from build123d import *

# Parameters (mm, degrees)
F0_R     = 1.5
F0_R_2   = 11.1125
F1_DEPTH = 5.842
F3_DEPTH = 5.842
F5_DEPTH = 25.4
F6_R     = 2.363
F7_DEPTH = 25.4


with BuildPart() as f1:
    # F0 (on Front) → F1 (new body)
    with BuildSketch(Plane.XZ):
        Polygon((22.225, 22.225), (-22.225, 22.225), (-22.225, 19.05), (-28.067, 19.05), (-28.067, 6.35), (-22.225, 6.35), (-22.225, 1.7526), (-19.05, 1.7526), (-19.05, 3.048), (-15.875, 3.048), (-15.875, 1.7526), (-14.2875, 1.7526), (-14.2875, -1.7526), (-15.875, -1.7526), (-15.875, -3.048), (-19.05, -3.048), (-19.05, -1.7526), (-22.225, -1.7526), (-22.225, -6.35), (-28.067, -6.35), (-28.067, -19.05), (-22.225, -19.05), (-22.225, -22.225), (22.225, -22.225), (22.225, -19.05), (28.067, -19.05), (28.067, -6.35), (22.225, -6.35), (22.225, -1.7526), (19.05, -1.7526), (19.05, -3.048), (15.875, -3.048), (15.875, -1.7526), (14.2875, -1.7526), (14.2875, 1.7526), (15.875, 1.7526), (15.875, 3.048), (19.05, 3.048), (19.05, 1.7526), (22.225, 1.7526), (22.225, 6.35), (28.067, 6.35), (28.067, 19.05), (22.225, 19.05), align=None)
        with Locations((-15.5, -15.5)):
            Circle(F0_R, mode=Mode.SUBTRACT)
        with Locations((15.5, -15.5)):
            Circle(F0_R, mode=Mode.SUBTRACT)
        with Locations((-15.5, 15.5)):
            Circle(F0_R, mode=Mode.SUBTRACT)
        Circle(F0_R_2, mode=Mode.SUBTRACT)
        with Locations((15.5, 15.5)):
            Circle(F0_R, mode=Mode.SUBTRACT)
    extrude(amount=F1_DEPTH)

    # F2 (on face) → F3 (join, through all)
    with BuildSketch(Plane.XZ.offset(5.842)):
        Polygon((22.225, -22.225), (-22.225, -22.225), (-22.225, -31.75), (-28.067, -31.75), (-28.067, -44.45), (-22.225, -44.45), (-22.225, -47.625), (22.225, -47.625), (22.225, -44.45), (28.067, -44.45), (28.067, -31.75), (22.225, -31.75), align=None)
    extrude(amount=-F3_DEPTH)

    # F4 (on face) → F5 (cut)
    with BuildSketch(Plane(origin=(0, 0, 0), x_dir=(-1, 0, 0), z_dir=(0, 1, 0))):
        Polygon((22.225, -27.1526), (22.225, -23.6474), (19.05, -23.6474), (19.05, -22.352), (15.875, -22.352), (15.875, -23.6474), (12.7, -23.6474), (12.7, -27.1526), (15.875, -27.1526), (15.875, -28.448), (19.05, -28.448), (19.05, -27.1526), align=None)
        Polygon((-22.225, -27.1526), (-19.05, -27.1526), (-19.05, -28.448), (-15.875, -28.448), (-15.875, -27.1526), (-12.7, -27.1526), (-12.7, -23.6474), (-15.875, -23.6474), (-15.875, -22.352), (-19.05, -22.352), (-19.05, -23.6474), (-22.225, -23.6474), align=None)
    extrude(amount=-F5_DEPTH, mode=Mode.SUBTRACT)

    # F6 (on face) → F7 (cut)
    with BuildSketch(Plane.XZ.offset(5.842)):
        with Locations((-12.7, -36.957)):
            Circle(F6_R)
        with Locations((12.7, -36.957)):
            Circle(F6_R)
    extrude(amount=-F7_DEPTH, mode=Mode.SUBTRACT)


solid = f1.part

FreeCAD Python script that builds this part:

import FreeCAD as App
import Part
import Sketcher

V = App.Vector
Q = App.Units.Quantity

doc = App.newDocument("Part")
body = doc.addObject("PartDesign::Body", "Body")

sketch1 = doc.addObject("Sketcher::SketchObject", "Sketch")
body.addObject(sketch1)
sketch1.AttachmentSupport = (doc.XZ_Plane, [""])
sketch1.MapMode = "FlatFace"
sketch1.addGeometry([
    Part.LineSegment(V(22.2, 22.2, 0), V(-22.2, 22.2, 0)),
    Part.LineSegment(V(-22.2, 22.2, 0), V(-22.2, 19.1, 0)),
    Part.LineSegment(V(-22.2, 19.1, 0), V(-28.1, 19.1, 0)),
    Part.LineSegment(V(-28.1, 19.1, 0), V(-28.1, 6.3, 0)),
    Part.LineSegment(V(-28.1, 6.3, 0), V(-22.2, 6.3, 0)),
    Part.LineSegment(V(-22.2, 6.3, 0), V(-22.2, 1.8, 0)),
    Part.LineSegment(V(-22.2, 1.8, 0), V(-19.1, 1.8, 0)),
    Part.LineSegment(V(-19.1, 1.8, 0), V(-19.1, 3, 0)),
    Part.LineSegment(V(-19.1, 3, 0), V(-15.9, 3, 0)),
    Part.LineSegment(V(-15.9, 3, 0), V(-15.9, 1.8, 0)),
    Part.LineSegment(V(-15.9, 1.8, 0), V(-14.3, 1.8, 0)),
    Part.LineSegment(V(-14.3, 1.8, 0), V(-14.3, -1.8, 0)),
    Part.LineSegment(V(-14.3, -1.8, 0), V(-15.9, -1.8, 0)),
    Part.LineSegment(V(-15.9, -1.8, 0), V(-15.9, -3, 0)),
    Part.LineSegment(V(-15.9, -3, 0), V(-19.1, -3, 0)),
    Part.LineSegment(V(-19.1, -3, 0), V(-19.1, -1.8, 0)),
    Part.LineSegment(V(-19.1, -1.8, 0), V(-22.2, -1.8, 0)),
    Part.LineSegment(V(-22.2, -1.8, 0), V(-22.2, -6.3, 0)),
    Part.LineSegment(V(-22.2, -6.3, 0), V(-28.1, -6.3, 0)),
    Part.LineSegment(V(-28.1, -6.3, 0), V(-28.1, -19.1, 0)),
    Part.LineSegment(V(-28.1, -19.1, 0), V(-22.2, -19.1, 0)),
    Part.LineSegment(V(-22.2, -19.1, 0), V(-22.2, -22.2, 0)),
    Part.LineSegment(V(-22.2, -22.2, 0), V(22.2, -22.2, 0)),
    Part.LineSegment(V(22.2, -22.2, 0), V(22.2, -19.1, 0)),
    Part.LineSegment(V(22.2, -19.1, 0), V(28.1, -19.1, 0)),
    Part.LineSegment(V(28.1, -19.1, 0), V(28.1, -6.3, 0)),
    Part.LineSegment(V(28.1, -6.3, 0), V(22.2, -6.3, 0)),
    Part.LineSegment(V(22.2, -6.3, 0), V(22.2, -1.8, 0)),
    Part.LineSegment(V(22.2, -1.8, 0), V(19.1, -1.8, 0)),
    Part.LineSegment(V(19.1, -1.8, 0), V(19.1, -3, 0)),
    Part.LineSegment(V(19.1, -3, 0), V(15.9, -3, 0)),
    Part.LineSegment(V(15.9, -3, 0), V(15.9, -1.8, 0)),
    Part.LineSegment(V(15.9, -1.8, 0), V(14.3, -1.8, 0)),
    Part.LineSegment(V(14.3, -1.8, 0), V(14.3, 1.8, 0)),
    Part.LineSegment(V(14.3, 1.8, 0), V(15.9, 1.8, 0)),
    Part.LineSegment(V(15.9, 1.8, 0), V(15.9, 3, 0)),
    Part.LineSegment(V(15.9, 3, 0), V(19.1, 3, 0)),
    Part.LineSegment(V(19.1, 3, 0), V(19.1, 1.8, 0)),
    Part.LineSegment(V(19.1, 1.8, 0), V(22.2, 1.8, 0)),
    Part.LineSegment(V(22.2, 1.8, 0), V(22.2, 6.3, 0)),
    Part.LineSegment(V(22.2, 6.3, 0), V(28.1, 6.3, 0)),
    Part.LineSegment(V(28.1, 6.3, 0), V(28.1, 19.1, 0)),
    Part.LineSegment(V(28.1, 19.1, 0), V(22.2, 19.1, 0)),
    Part.LineSegment(V(22.2, 19.1, 0), V(22.2, 22.2, 0)),
    Part.Circle(V(-15.5, -15.5, 0), V(0, 0, 1), 1.5),
    Part.Circle(V(15.5, -15.5, 0), V(0, 0, 1), 1.5),
    Part.Circle(V(-15.5, 15.5, 0), V(0, 0, 1), 1.5),
    Part.Circle(V(0, 0, 0), V(0, 0, 1), 11.1),
    Part.Circle(V(15.5, 15.5, 0), V(0, 0, 1), 1.5),
], False)
sketch1.addConstraint([
    Sketcher.Constraint("Coincident", 0, 2, 1, 1),
    Sketcher.Constraint("Coincident", 1, 2, 2, 1),
    Sketcher.Constraint("Coincident", 2, 2, 3, 1),
    Sketcher.Constraint("Coincident", 3, 2, 4, 1),
    Sketcher.Constraint("Coincident", 4, 2, 5, 1),
    Sketcher.Constraint("Coincident", 5, 2, 6, 1),
    Sketcher.Constraint("Coincident", 6, 2, 7, 1),
    Sketcher.Constraint("Coincident", 7, 2, 8, 1),
    Sketcher.Constraint("Coincident", 8, 2, 9, 1),
    Sketcher.Constraint("Coincident", 9, 2, 10, 1),
    Sketcher.Constraint("Coincident", 10, 2, 11, 1),
    Sketcher.Constraint("Coincident", 11, 2, 12, 1),
    Sketcher.Constraint("Coincident", 12, 2, 13, 1),
    Sketcher.Constraint("Coincident", 13, 2, 14, 1),
    Sketcher.Constraint("Coincident", 14, 2, 15, 1),
    Sketcher.Constraint("Coincident", 15, 2, 16, 1),
    Sketcher.Constraint("Coincident", 16, 2, 17, 1),
    Sketcher.Constraint("Coincident", 17, 2, 18, 1),
    Sketcher.Constraint("Coincident", 18, 2, 19, 1),
    Sketcher.Constraint("Coincident", 19, 2, 20, 1),
    Sketcher.Constraint("Coincident", 20, 2, 21, 1),
    Sketcher.Constraint("Coincident", 21, 2, 22, 1),
    Sketcher.Constraint("Coincident", 22, 2, 23, 1),
    Sketcher.Constraint("Coincident", 23, 2, 24, 1),
    Sketcher.Constraint("Coincident", 24, 2, 25, 1),
    Sketcher.Constraint("Coincident", 25, 2, 26, 1),
    Sketcher.Constraint("Coincident", 26, 2, 27, 1),
    Sketcher.Constraint("Coincident", 27, 2, 28, 1),
    Sketcher.Constraint("Coincident", 28, 2, 29, 1),
    Sketcher.Constraint("Coincident", 29, 2, 30, 1),
    Sketcher.Constraint("Coincident", 30, 2, 31, 1),
    Sketcher.Constraint("Coincident", 31, 2, 32, 1),
    Sketcher.Constraint("Coincident", 32, 2, 33, 1),
    Sketcher.Constraint("Coincident", 33, 2, 34, 1),
    Sketcher.Constraint("Coincident", 34, 2, 35, 1),
    Sketcher.Constraint("Coincident", 35, 2, 36, 1),
    Sketcher.Constraint("Coincident", 36, 2, 37, 1),
    Sketcher.Constraint("Coincident", 37, 2, 38, 1),
    Sketcher.Constraint("Coincident", 38, 2, 39, 1),
    Sketcher.Constraint("Coincident", 39, 2, 40, 1),
    Sketcher.Constraint("Coincident", 40, 2, 41, 1),
    Sketcher.Constraint("Coincident", 41, 2, 42, 1),
    Sketcher.Constraint("Coincident", 42, 2, 43, 1),
    Sketcher.Constraint("Coincident", 43, 2, 0, 1),
    Sketcher.Constraint("Horizontal", 0),
    Sketcher.Constraint("Vertical", 1),
    Sketcher.Constraint("Horizontal", 2),
    Sketcher.Constraint("Vertical", 3),
    Sketcher.Constraint("Horizontal", 4),
    Sketcher.Constraint("Vertical", 5),
    Sketcher.Constraint("Horizontal", 6),
    Sketcher.Constraint("Vertical", 7),
    Sketcher.Constraint("Horizontal", 8),
    Sketcher.Constraint("Vertical", 9),
    Sketcher.Constraint("Horizontal", 10),
    Sketcher.Constraint("Vertical", 11),
    Sketcher.Constraint("Horizontal", 12),
    Sketcher.Constraint("Vertical", 13),
    Sketcher.Constraint("Horizontal", 14),
    Sketcher.Constraint("Vertical", 15),
    Sketcher.Constraint("Horizontal", 16),
    Sketcher.Constraint("Vertical", 17),
    Sketcher.Constraint("Horizontal", 18),
    Sketcher.Constraint("Vertical", 19),
    Sketcher.Constraint("Horizontal", 20),
    Sketcher.Constraint("Vertical", 21),
    Sketcher.Constraint("Horizontal", 22),
    Sketcher.Constraint("Vertical", 23),
    Sketcher.Constraint("Horizontal", 24),
    Sketcher.Constraint("Vertical", 25),
    Sketcher.Constraint("Horizontal", 26),
    Sketcher.Constraint("Vertical", 27),
    Sketcher.Constraint("Horizontal", 28),
    Sketcher.Constraint("Vertical", 29),
    Sketcher.Constraint("Horizontal", 30),
    Sketcher.Constraint("Vertical", 31),
    Sketcher.Constraint("Horizontal", 32),
    Sketcher.Constraint("Vertical", 33),
    Sketcher.Constraint("Horizontal", 34),
    Sketcher.Constraint("Vertical", 35),
    Sketcher.Constraint("Horizontal", 36),
    Sketcher.Constraint("Vertical", 37),
    Sketcher.Constraint("Horizontal", 38),
    Sketcher.Constraint("Vertical", 39),
    Sketcher.Constraint("Horizontal", 40),
    Sketcher.Constraint("Vertical", 41),
    Sketcher.Constraint("Horizontal", 42),
    Sketcher.Constraint("Vertical", 43),
    Sketcher.Constraint("Coincident", 47, 3, -1, 1),
    Sketcher.Constraint("Equal", 44, 45),
    Sketcher.Constraint("Equal", 45, 46),
    Sketcher.Constraint("Equal", 46, 48),
    Sketcher.Constraint("Symmetric", 45, 3, 46, 3, -1, 1),
    Sketcher.Constraint("Symmetric", 44, 3, 48, 3, -1, 1),
    Sketcher.Constraint("Symmetric", 0, 2, 22, 2, -1, 1),
    Sketcher.Constraint("Symmetric", 2, 2, 24, 2, -1, 1),
    Sketcher.Constraint("Symmetric", 4, 2, 26, 2, -1, 1),
    Sketcher.Constraint("Symmetric", 6, 2, 28, 2, -1, 1),
    Sketcher.Constraint("Symmetric", 8, 2, 30, 2, -1, 1),
    Sketcher.Constraint("Symmetric", 10, 2, 32, 2, -1, 1),
    Sketcher.Constraint("Symmetric", 12, 2, 34, 2, -1, 1),
    Sketcher.Constraint("Symmetric", 14, 2, 36, 2, -1, 1),
    Sketcher.Constraint("Symmetric", 16, 2, 38, 2, -1, 1),
    Sketcher.Constraint("Symmetric", 18, 2, 40, 2, -1, 1),
    Sketcher.Constraint("Symmetric", 20, 2, 42, 2, -1, 1),
    Sketcher.Constraint("Symmetric", 44, 3, 45, 3, -2),
    Sketcher.Constraint("Symmetric", 20, 2, 23, 2, -2),
    Sketcher.Constraint("Symmetric", 18, 2, 25, 2, -2),
    Sketcher.Constraint("Symmetric", 16, 2, 27, 2, -2),
    Sketcher.Constraint("Symmetric", 14, 2, 29, 2, -2),
    Sketcher.Constraint("Symmetric", 12, 2, 31, 2, -2),
    Sketcher.Constraint("Horizontal", 6, 2, 9, 2),
    Sketcher.Constraint("Vertical", 1, 2, 4, 2),
    Sketcher.Constraint("Equal", 6, 8),
    Sketcher.Constraint("Equal", 38, 1),
    Sketcher.Constraint("Diameter", 47, Q("0.875 in")),
    Sketcher.Constraint("DistanceY", 3, 2, 3, 1, Q("0.5 in")),
    Sketcher.Constraint("DistanceX", 0, 2, 0, 1, Q("1.75 in")),
    Sketcher.Constraint("DistanceX", 2, 2, 2, 1, Q("0.23 in")),
    Sketcher.Constraint("Diameter", 44, 3.0),
    Sketcher.Constraint("DistanceX", 6, 1, 6, 2, Q("0.125 in")),
    Sketcher.Constraint("DistanceX", 10, 1, 10, 2, Q("0.0625 in")),
    Sketcher.Constraint("DistanceY", 5, 2, 5, 1, Q("0.181 in")),
    Sketcher.Constraint("DistanceY", 7, 1, 7, 2, Q("0.051 in")),
    Sketcher.Constraint("DistanceY", 11, 2, 11, 1, Q("0.138 in")),
    Sketcher.Constraint("DistanceX", 44, 3, -1, 1, 15.5),
    Sketcher.Constraint("DistanceY", 44, 3, -1, 1, 15.5),
])
pad1 = doc.addObject("PartDesign::Pad", "Pad")
body.addObject(pad1)
pad1.Profile = sketch1
pad1.Length = Q("0.23 in")

sketch2 = doc.addObject("Sketcher::SketchObject", "Sketch001")
body.addObject(sketch2)
sketch2.AttachmentSupport = (doc.XZ_Plane, [""])
sketch2.MapMode = "FlatFace"
sketch2.AttachmentOffset = App.Placement(V(0, 0, 0.23 * 25.4), App.Rotation())
sketch2.addGeometry([
    Part.LineSegment(V(22.2, -22.2, 0), V(-22.2, -22.2, 0)),
    Part.LineSegment(V(-22.2, -22.2, 0), V(-22.2, -31.8, 0)),
    Part.LineSegment(V(-22.2, -31.8, 0), V(-28.1, -31.8, 0)),
    Part.LineSegment(V(-28.1, -31.8, 0), V(-28.1, -44.5, 0)),
    Part.LineSegment(V(-28.1, -44.5, 0), V(-22.2, -44.5, 0)),
    Part.LineSegment(V(-22.2, -44.5, 0), V(-22.2, -47.6, 0)),
    Part.LineSegment(V(-22.2, -47.6, 0), V(22.2, -47.6, 0)),
    Part.LineSegment(V(22.2, -47.6, 0), V(22.2, -44.5, 0)),
    Part.LineSegment(V(22.2, -44.5, 0), V(28.1, -44.5, 0)),
    Part.LineSegment(V(28.1, -44.5, 0), V(28.1, -31.8, 0)),
    Part.LineSegment(V(28.1, -31.8, 0), V(22.2, -31.8, 0)),
    Part.LineSegment(V(22.2, -31.8, 0), V(22.2, -22.2, 0)),
], False)
sketch2.addConstraint([
    Sketcher.Constraint("Coincident", 0, 2, 1, 1),
    Sketcher.Constraint("Coincident", 1, 2, 2, 1),
    Sketcher.Constraint("Coincident", 2, 2, 3, 1),
    Sketcher.Constraint("Coincident", 3, 2, 4, 1),
    Sketcher.Constraint("Coincident", 4, 2, 5, 1),
    Sketcher.Constraint("Coincident", 5, 2, 6, 1),
    Sketcher.Constraint("Coincident", 6, 2, 7, 1),
    Sketcher.Constraint("Coincident", 7, 2, 8, 1),
    Sketcher.Constraint("Coincident", 8, 2, 9, 1),
    Sketcher.Constraint("Coincident", 9, 2, 10, 1),
    Sketcher.Constraint("Coincident", 10, 2, 11, 1),
    Sketcher.Constraint("Coincident", 11, 2, 0, 1),
    Sketcher.Constraint("Horizontal", 0),
    Sketcher.Constraint("Vertical", 1),
    Sketcher.Constraint("Horizontal", 2),
    Sketcher.Constraint("Vertical", 3),
    Sketcher.Constraint("Horizontal", 4),
    Sketcher.Constraint("Vertical", 5),
    Sketcher.Constraint("Horizontal", 6),
    Sketcher.Constraint("Vertical", 7),
    Sketcher.Constraint("Horizontal", 8),
    Sketcher.Constraint("Vertical", 9),
    Sketcher.Constraint("Horizontal", 10),
    Sketcher.Constraint("Vertical", 11),
    Sketcher.Constraint("Symmetric", 4, 2, 7, 2, -2),
    Sketcher.Constraint("Symmetric", 2, 2, 9, 2, -2),
    Sketcher.Constraint("Vertical", 1, 2, 4, 2),
    Sketcher.Constraint("Vertical", 7, 2, 10, 2),
    Sketcher.Constraint("DistanceY", 3, 2, 3, 1, Q("0.5 in")),
    Sketcher.Constraint("DistanceY", 5, 2, 0, 2, Q("1 in")),
    Sketcher.Constraint("DistanceX", 0, 2, 0, 1, Q("1.75 in")),
    Sketcher.Constraint("DistanceX", 2, 2, 2, 1, Q("0.23 in")),
    Sketcher.Constraint("DistanceY", 1, 2, 1, 1, Q("0.375 in")),
    Sketcher.Constraint("DistanceY", 1, 2, -1, 1, Q("1.25 in")),
])
pad2 = doc.addObject("PartDesign::Pad", "Pad001")
body.addObject(pad2)
pad2.Profile = sketch2
pad2.Length = Q("0.23 in")
pad2.Reversed = True

sketch3 = doc.addObject("Sketcher::SketchObject", "Sketch002")
body.addObject(sketch3)
sketch3.AttachmentSupport = (doc.XZ_Plane, [""])
sketch3.MapMode = "FlatFace"
sketch3.addGeometry([
    Part.LineSegment(V(-22.2, -27.2, 0), V(-22.2, -23.6, 0)),
    Part.LineSegment(V(-22.2, -23.6, 0), V(-19.1, -23.6, 0)),
    Part.LineSegment(V(-19.1, -23.6, 0), V(-19.1, -22.4, 0)),
    Part.LineSegment(V(-19.1, -22.4, 0), V(-15.9, -22.4, 0)),
    Part.LineSegment(V(-15.9, -22.4, 0), V(-15.9, -23.6, 0)),
    Part.LineSegment(V(-15.9, -23.6, 0), V(-12.7, -23.6, 0)),
    Part.LineSegment(V(-12.7, -23.6, 0), V(-12.7, -27.2, 0)),
    Part.LineSegment(V(-12.7, -27.2, 0), V(-15.9, -27.2, 0)),
    Part.LineSegment(V(-15.9, -27.2, 0), V(-15.9, -28.4, 0)),
    Part.LineSegment(V(-15.9, -28.4, 0), V(-19.1, -28.4, 0)),
    Part.LineSegment(V(-19.1, -28.4, 0), V(-19.1, -27.2, 0)),
    Part.LineSegment(V(-19.1, -27.2, 0), V(-22.2, -27.2, 0)),
    Part.LineSegment(V(22.2, -27.2, 0), V(19.1, -27.2, 0)),
    Part.LineSegment(V(19.1, -27.2, 0), V(19.1, -28.4, 0)),
    Part.LineSegment(V(19.1, -28.4, 0), V(15.9, -28.4, 0)),
    Part.LineSegment(V(15.9, -28.4, 0), V(15.9, -27.2, 0)),
    Part.LineSegment(V(15.9, -27.2, 0), V(12.7, -27.2, 0)),
    Part.LineSegment(V(12.7, -27.2, 0), V(12.7, -23.6, 0)),
    Part.LineSegment(V(12.7, -23.6, 0), V(15.9, -23.6, 0)),
    Part.LineSegment(V(15.9, -23.6, 0), V(15.9, -22.4, 0)),
    Part.LineSegment(V(15.9, -22.4, 0), V(19.1, -22.4, 0)),
    Part.LineSegment(V(19.1, -22.4, 0), V(19.1, -23.6, 0)),
    Part.LineSegment(V(19.1, -23.6, 0), V(22.2, -23.6, 0)),
    Part.LineSegment(V(22.2, -23.6, 0), V(22.2, -27.2, 0)),
], False)
sketch3.addConstraint([
    Sketcher.Constraint("Coincident", 0, 2, 1, 1),
    Sketcher.Constraint("Coincident", 1, 2, 2, 1),
    Sketcher.Constraint("Coincident", 2, 2, 3, 1),
    Sketcher.Constraint("Coincident", 3, 2, 4, 1),
    Sketcher.Constraint("Coincident", 4, 2, 5, 1),
    Sketcher.Constraint("Coincident", 5, 2, 6, 1),
    Sketcher.Constraint("Coincident", 6, 2, 7, 1),
    Sketcher.Constraint("Coincident", 7, 2, 8, 1),
    Sketcher.Constraint("Coincident", 8, 2, 9, 1),
    Sketcher.Constraint("Coincident", 9, 2, 10, 1),
    Sketcher.Constraint("Coincident", 10, 2, 11, 1),
    Sketcher.Constraint("Coincident", 11, 2, 0, 1),
    Sketcher.Constraint("Coincident", 12, 2, 13, 1),
    Sketcher.Constraint("Coincident", 13, 2, 14, 1),
    Sketcher.Constraint("Coincident", 14, 2, 15, 1),
    Sketcher.Constraint("Coincident", 15, 2, 16, 1),
    Sketcher.Constraint("Coincident", 16, 2, 17, 1),
    Sketcher.Constraint("Coincident", 17, 2, 18, 1),
    Sketcher.Constraint("Coincident", 18, 2, 19, 1),
    Sketcher.Constraint("Coincident", 19, 2, 20, 1),
    Sketcher.Constraint("Coincident", 20, 2, 21, 1),
    Sketcher.Constraint("Coincident", 21, 2, 22, 1),
    Sketcher.Constraint("Coincident", 22, 2, 23, 1),
    Sketcher.Constraint("Coincident", 23, 2, 12, 1),
    Sketcher.Constraint("Vertical", 0),
    Sketcher.Constraint("Horizontal", 1),
    Sketcher.Constraint("Vertical", 2),
    Sketcher.Constraint("Horizontal", 3),
    Sketcher.Constraint("Vertical", 4),
    Sketcher.Constraint("Horizontal", 5),
    Sketcher.Constraint("Vertical", 6),
    Sketcher.Constraint("Horizontal", 7),
    Sketcher.Constraint("Vertical", 8),
    Sketcher.Constraint("Horizontal", 9),
    Sketcher.Constraint("Vertical", 10),
    Sketcher.Constraint("Horizontal", 11),
    Sketcher.Constraint("Horizontal", 12),
    Sketcher.Constraint("Vertical", 13),
    Sketcher.Constraint("Horizontal", 14),
    Sketcher.Constraint("Vertical", 15),
    Sketcher.Constraint("Horizontal", 16),
    Sketcher.Constraint("Vertical", 17),
    Sketcher.Constraint("Horizontal", 18),
    Sketcher.Constraint("Vertical", 19),
    Sketcher.Constraint("Horizontal", 20),
    Sketcher.Constraint("Vertical", 21),
    Sketcher.Constraint("Horizontal", 22),
    Sketcher.Constraint("Vertical", 23),
    Sketcher.Constraint("Symmetric", 10, 2, 12, 2, -2),
    Sketcher.Constraint("Symmetric", 8, 2, 14, 2, -2),
    Sketcher.Constraint("Symmetric", 6, 2, 16, 2, -2),
    Sketcher.Constraint("Symmetric", 4, 2, 18, 2, -2),
    Sketcher.Constraint("Symmetric", 2, 2, 20, 2, -2),
    Sketcher.Constraint("Symmetric", 0, 2, 22, 2, -2),
    Sketcher.Constraint("Horizontal", 1, 2, 4, 2),
    Sketcher.Constraint("Horizontal", 7, 2, 10, 2),
    Sketcher.Constraint("Vertical", 4, 2, 7, 2),
    Sketcher.Constraint("Vertical", 2, 2, 9, 2),
    Sketcher.Constraint("Equal", 1, 3),
    Sketcher.Constraint("Equal", 3, 5),
    Sketcher.Constraint("Equal", 4, 8),
    Sketcher.Constraint("DistanceX", 6, 2, 16, 2, Q("1 in")),
    Sketcher.Constraint("DistanceX", 1, 1, 1, 2, Q("0.125 in")),
    Sketcher.Constraint("DistanceY", 0, 1, 0, 2, Q("0.138 in")),
    Sketcher.Constraint("DistanceY", 2, 1, 2, 2, Q("0.051 in")),
    Sketcher.Constraint("DistanceY", 2, 2, -1, 1, Q("0.88 in")),
])
pocket1 = doc.addObject("PartDesign::Pocket", "Pocket")
body.addObject(pocket1)
pocket1.Profile = sketch3
pocket1.Length = Q("1 in")
pocket1.Reversed = True

sketch4 = doc.addObject("Sketcher::SketchObject", "Sketch003")
body.addObject(sketch4)
sketch4.AttachmentSupport = (doc.XZ_Plane, [""])
sketch4.MapMode = "FlatFace"
sketch4.AttachmentOffset = App.Placement(V(0, 0, 0.23 * 25.4), App.Rotation())
sketch4.addGeometry([
    Part.Circle(V(-12.7, -37, 0), V(0, 0, 1), 2.4),
    Part.Circle(V(12.7, -37, 0), V(0, 0, 1), 2.4),
], False)
sketch4.addConstraint([
    Sketcher.Constraint("Equal", 0, 1),
    Sketcher.Constraint("Symmetric", 0, 3, 1, 3, -2),
    Sketcher.Constraint("DistanceX", 0, 3, 1, 3, Q("1 in")),
    Sketcher.Constraint("Diameter", 0, 4.726),
    Sketcher.Constraint("DistanceY", 0, 3, -1, 1, Q("1.455 in")),
])
pocket2 = doc.addObject("PartDesign::Pocket", "Pocket001")
body.addObject(pocket2)
pocket2.Profile = sketch4
pocket2.Length = Q("1 in")

doc.recompute()
